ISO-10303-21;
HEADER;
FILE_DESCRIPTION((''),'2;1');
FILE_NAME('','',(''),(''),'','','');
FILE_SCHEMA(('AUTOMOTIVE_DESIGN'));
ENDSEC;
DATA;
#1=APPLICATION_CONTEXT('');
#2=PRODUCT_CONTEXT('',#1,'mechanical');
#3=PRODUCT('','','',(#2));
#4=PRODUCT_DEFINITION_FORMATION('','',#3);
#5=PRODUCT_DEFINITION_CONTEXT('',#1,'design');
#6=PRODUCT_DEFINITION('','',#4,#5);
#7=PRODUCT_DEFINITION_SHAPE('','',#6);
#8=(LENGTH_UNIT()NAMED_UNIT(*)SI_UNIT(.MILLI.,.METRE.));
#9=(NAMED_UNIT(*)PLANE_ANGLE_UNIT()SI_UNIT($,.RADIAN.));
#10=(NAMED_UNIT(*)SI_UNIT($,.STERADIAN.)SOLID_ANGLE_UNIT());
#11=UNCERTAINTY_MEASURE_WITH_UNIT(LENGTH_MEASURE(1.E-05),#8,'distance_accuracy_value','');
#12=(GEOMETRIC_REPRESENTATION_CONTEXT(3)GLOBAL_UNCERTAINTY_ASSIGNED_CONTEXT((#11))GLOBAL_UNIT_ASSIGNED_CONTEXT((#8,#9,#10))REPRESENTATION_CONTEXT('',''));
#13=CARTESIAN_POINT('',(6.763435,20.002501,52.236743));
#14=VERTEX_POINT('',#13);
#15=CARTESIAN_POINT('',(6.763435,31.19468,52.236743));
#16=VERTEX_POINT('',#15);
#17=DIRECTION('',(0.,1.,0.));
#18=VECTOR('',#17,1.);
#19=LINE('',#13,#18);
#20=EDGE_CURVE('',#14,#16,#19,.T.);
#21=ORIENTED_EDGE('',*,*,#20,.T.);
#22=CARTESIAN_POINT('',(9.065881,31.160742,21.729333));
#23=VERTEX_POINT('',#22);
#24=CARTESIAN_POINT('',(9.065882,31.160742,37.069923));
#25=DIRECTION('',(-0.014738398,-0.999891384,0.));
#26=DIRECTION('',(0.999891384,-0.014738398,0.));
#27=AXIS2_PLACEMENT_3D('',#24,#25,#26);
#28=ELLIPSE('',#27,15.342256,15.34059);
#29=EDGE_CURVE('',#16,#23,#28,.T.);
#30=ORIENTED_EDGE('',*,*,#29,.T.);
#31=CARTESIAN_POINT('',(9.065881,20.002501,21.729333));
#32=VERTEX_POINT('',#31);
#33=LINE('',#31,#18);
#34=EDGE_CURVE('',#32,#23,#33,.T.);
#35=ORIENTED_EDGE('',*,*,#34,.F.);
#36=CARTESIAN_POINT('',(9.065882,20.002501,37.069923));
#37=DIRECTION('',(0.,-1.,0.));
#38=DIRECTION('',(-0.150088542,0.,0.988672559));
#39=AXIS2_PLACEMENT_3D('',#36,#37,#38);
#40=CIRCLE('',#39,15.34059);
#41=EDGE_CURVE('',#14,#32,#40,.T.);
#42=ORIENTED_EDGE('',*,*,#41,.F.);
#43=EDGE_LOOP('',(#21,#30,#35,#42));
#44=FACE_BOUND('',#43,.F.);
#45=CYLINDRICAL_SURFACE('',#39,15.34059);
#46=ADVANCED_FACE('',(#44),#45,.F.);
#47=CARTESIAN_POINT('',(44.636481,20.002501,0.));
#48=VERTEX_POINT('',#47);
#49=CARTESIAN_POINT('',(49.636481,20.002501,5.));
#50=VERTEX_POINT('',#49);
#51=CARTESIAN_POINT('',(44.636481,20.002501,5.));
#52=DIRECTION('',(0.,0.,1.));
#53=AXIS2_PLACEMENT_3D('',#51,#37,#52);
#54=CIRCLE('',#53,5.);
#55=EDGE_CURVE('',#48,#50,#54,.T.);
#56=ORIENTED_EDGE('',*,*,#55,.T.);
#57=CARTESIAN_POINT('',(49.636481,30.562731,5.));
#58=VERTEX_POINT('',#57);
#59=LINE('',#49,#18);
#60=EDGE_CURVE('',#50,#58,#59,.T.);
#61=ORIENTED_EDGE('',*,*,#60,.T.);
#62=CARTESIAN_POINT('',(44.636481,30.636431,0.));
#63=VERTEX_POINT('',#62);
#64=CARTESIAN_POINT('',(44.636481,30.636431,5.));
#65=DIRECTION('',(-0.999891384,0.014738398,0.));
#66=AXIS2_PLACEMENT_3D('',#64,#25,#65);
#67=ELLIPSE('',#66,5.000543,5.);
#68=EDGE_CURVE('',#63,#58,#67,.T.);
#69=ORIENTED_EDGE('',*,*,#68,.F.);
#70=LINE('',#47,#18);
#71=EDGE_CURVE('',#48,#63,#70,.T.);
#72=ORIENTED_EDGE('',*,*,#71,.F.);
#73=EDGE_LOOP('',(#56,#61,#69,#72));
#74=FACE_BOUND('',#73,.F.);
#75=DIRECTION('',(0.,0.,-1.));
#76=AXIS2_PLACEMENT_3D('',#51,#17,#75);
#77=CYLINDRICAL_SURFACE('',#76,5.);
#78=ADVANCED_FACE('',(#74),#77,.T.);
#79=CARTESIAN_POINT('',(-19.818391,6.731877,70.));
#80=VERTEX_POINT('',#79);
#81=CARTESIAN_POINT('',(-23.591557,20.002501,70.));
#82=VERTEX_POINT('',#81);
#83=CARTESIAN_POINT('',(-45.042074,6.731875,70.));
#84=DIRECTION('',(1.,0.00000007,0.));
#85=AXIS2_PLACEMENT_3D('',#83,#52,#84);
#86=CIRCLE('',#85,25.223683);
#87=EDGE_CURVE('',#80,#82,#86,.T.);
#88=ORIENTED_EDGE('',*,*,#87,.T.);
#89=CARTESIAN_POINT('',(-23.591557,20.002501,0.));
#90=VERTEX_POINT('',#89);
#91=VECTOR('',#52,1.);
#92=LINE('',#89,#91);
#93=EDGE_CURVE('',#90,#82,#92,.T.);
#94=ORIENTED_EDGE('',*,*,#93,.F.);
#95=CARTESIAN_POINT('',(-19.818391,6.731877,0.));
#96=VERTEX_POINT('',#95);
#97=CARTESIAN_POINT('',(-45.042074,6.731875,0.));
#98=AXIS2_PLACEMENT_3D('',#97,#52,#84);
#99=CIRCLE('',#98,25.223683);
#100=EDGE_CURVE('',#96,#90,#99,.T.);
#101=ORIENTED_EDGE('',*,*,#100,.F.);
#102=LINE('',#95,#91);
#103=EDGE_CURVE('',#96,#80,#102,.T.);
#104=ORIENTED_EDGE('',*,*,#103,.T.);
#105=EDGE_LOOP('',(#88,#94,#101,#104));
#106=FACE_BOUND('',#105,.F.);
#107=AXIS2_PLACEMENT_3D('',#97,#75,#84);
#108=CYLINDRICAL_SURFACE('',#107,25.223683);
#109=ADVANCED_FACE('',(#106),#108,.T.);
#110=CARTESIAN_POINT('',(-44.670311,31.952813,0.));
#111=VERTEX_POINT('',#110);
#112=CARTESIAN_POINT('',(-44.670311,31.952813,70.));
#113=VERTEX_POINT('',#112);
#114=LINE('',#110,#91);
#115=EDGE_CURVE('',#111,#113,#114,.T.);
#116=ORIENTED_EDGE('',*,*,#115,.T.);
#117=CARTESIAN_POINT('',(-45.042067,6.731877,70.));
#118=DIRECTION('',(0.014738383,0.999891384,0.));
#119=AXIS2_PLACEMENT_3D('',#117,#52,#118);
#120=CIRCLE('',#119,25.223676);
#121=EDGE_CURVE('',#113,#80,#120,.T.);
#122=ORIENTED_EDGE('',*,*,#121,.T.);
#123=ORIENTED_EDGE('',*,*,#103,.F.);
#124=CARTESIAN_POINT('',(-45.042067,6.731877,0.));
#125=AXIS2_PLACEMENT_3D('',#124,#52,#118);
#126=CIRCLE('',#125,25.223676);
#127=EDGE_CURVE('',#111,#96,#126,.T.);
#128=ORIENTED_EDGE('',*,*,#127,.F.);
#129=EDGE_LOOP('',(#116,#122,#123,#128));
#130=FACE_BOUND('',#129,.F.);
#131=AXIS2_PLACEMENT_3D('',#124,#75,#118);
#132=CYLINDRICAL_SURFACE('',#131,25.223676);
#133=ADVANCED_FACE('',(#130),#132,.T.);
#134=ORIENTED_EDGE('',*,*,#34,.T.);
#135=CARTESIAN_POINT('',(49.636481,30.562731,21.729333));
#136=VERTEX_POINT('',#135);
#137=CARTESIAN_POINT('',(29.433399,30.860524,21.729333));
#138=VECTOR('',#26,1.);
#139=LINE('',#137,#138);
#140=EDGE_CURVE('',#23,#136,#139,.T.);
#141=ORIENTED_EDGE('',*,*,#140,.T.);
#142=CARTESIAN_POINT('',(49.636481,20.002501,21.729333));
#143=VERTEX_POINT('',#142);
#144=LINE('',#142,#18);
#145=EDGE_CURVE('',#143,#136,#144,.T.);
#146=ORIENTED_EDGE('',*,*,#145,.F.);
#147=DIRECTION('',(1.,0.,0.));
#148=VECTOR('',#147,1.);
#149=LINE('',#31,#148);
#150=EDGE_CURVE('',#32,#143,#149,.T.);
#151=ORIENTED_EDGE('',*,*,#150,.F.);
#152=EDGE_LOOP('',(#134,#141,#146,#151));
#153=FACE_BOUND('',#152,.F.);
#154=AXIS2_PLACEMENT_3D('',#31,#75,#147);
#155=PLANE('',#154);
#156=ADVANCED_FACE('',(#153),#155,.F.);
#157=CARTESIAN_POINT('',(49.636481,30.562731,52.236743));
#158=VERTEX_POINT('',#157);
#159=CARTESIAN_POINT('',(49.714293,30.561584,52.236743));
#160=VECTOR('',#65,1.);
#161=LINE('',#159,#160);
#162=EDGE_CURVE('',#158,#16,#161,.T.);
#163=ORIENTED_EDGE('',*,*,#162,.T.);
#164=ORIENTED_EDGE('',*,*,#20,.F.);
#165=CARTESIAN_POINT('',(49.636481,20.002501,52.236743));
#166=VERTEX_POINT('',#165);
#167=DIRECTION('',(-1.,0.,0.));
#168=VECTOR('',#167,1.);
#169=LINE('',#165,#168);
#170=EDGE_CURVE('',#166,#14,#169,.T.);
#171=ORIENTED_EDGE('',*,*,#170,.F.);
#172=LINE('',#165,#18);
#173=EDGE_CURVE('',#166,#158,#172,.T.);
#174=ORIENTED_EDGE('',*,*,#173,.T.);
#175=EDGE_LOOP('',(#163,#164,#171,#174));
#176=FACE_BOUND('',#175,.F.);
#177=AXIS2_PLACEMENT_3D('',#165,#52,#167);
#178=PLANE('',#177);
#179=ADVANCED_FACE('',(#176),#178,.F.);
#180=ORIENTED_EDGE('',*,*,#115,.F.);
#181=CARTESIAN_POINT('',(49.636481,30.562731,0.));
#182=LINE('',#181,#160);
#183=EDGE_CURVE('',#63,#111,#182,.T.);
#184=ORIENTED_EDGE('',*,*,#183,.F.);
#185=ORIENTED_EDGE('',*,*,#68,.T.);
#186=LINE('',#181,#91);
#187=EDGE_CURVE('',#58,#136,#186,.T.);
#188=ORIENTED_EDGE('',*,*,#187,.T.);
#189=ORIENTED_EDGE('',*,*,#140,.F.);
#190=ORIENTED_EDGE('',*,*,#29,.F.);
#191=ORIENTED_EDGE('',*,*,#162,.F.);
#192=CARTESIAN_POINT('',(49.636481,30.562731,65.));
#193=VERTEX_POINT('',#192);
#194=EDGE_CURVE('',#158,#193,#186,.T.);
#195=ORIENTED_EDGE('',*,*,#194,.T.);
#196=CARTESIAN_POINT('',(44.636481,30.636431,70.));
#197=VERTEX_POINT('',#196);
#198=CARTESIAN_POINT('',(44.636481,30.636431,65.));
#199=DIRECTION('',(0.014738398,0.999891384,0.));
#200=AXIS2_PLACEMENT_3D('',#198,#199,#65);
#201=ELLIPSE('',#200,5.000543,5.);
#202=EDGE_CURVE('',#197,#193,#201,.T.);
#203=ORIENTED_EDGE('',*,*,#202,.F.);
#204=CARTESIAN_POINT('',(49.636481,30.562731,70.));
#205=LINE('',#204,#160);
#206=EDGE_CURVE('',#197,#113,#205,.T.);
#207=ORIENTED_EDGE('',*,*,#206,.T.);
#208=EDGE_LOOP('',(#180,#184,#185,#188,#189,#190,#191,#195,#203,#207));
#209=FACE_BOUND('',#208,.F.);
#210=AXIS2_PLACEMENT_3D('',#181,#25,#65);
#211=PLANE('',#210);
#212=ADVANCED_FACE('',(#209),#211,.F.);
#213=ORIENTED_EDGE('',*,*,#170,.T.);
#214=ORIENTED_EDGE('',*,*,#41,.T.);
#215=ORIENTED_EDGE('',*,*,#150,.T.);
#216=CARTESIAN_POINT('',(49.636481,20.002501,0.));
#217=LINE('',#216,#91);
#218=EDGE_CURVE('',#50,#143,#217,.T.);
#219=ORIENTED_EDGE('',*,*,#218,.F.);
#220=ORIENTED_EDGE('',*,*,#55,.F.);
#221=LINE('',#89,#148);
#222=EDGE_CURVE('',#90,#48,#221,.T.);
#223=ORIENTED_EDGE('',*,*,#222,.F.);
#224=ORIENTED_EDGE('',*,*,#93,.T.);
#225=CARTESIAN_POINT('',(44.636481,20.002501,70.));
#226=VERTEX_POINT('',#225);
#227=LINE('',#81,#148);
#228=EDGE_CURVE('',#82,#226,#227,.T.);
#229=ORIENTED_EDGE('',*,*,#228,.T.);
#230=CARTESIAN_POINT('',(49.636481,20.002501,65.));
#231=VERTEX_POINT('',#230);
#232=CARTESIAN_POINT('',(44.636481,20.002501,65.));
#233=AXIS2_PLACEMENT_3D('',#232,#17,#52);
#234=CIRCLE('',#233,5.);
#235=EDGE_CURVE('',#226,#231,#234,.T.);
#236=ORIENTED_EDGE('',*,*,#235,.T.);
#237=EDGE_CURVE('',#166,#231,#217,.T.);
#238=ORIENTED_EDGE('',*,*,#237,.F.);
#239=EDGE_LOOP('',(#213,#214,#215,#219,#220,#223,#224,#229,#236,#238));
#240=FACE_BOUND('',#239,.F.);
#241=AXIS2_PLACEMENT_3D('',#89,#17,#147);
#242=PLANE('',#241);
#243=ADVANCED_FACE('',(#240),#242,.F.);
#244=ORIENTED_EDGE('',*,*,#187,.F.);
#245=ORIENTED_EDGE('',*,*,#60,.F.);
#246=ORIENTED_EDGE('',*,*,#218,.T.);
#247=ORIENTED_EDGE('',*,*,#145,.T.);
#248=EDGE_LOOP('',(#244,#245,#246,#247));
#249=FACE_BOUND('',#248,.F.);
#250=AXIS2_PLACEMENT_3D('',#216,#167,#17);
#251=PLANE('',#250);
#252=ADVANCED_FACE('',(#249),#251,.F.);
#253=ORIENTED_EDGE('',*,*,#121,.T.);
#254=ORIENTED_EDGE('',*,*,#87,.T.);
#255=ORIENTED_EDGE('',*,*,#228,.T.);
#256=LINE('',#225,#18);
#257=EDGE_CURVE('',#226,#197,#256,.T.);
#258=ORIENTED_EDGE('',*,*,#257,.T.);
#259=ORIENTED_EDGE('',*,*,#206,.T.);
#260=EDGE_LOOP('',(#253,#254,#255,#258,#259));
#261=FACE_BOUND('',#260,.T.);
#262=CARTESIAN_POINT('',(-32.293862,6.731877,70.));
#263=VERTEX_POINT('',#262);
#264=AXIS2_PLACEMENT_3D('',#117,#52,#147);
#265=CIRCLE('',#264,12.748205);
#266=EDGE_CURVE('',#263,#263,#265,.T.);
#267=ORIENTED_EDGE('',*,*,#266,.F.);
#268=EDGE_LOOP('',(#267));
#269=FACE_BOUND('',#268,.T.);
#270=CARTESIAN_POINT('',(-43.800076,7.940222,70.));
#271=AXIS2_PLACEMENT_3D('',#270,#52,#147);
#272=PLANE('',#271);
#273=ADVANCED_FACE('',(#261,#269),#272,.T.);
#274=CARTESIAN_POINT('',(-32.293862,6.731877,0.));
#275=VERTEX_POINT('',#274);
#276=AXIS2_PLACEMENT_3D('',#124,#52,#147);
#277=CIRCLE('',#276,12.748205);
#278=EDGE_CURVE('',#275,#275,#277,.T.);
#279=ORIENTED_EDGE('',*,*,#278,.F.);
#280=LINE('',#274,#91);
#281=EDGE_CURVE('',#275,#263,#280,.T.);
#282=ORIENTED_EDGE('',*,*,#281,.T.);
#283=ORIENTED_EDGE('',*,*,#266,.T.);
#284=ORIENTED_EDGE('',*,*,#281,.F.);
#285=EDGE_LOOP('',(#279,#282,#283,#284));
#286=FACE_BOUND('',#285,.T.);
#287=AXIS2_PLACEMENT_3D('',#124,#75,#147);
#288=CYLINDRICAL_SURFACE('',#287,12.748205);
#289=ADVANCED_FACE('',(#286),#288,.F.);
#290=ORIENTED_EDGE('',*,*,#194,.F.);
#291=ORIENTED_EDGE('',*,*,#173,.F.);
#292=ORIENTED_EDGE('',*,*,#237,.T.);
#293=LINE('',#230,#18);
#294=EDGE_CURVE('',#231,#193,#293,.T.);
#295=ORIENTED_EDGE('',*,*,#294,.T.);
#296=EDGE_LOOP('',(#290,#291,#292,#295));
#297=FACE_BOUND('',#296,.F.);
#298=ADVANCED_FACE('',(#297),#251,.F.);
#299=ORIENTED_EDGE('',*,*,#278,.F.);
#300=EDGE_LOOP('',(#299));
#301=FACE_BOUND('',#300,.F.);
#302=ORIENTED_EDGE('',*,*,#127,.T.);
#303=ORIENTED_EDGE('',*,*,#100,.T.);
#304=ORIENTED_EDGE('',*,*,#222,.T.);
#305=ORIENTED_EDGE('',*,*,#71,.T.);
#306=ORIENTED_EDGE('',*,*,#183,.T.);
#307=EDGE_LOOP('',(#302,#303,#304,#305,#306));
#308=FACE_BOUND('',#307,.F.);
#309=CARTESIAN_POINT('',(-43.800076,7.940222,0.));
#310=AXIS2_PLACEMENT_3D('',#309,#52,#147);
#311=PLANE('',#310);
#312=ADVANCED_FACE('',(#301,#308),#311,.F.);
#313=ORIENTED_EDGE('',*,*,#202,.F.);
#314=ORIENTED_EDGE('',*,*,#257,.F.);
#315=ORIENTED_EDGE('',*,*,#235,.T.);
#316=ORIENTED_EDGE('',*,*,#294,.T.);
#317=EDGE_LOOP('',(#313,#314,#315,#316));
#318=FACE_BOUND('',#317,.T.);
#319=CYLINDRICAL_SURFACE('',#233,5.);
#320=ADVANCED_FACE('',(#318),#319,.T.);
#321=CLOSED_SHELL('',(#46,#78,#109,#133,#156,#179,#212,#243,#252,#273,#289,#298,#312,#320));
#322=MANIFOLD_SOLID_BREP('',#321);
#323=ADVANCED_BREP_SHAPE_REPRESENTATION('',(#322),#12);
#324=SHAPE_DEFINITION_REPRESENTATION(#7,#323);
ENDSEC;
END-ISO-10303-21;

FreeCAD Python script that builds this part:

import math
import FreeCAD as App
import Part
import Sketcher

V = App.Vector
Q = App.Units.Quantity


def edges_at(feature, points):
    """Names of the edges that pass closest to the given points."""
    edges = feature.Shape.Edges
    near = lambda p: min(range(len(edges)), key=lambda i: edges[i].distToShape(Part.Vertex(*p))[0])
    return sorted({f"Edge{near(p) + 1}" for p in points})

doc = App.newDocument("Part")
params = doc.addObject("Spreadsheet::Sheet", "Params")
for row, (alias, value) in enumerate([
    ("pad1_length", "70 mm"),
    ("pocket1_length", "25 mm"),
    ("fillet_radius", "5 mm"),
], start=1):
    params.set(f"A{row}", alias)
    params.set(f"B{row}", "=" + value)
    params.setAlias(f"B{row}", alias)

body = doc.addObject("PartDesign::Body", "Body")

sketch1 = doc.addObject("Sketcher::SketchObject", "Sketch")
body.addObject(sketch1)
sketch1.AttachmentSupport = (doc.XY_Plane, [""])
sketch1.MapMode = "FlatFace"
sketch1.addGeometry([
    Part.ArcOfCircle(Part.Circle(V(-45, 7, 0), V(0, 0, 1), 25), math.radians(89), math.radians(360)),
    Part.ArcOfCircle(Part.Circle(V(-45, 7, 0), V(0, 0, 1), 25), math.radians(0), math.radians(32)),
    Part.LineSegment(V(-24, 20, 0), V(50, 20, 0)),
    Part.LineSegment(V(50, 20, 0), V(50, 31, 0)),
    Part.LineSegment(V(50, 31, 0), V(-45, 32, 0)),
    Part.Circle(V(-45, 7, 0), V(0, 0, 1), 13),
], False)
sketch1.addConstraint([
    Sketcher.Constraint("Tangent", 0, 2, 1, 1),
    Sketcher.Constraint("Coincident", 1, 2, 2, 1),
    Sketcher.Constraint("Coincident", 2, 2, 3, 1),
    Sketcher.Constraint("Coincident", 3, 2, 4, 1),
    Sketcher.Constraint("Tangent", 4, 2, 0, 1),
    Sketcher.Constraint("Horizontal", 2),
    Sketcher.Constraint("Vertical", 3),
    Sketcher.Constraint("Coincident", 5, 3, 0, 3),
    Sketcher.Constraint("Horizontal", 5, 3, 0, 2),
    Sketcher.Constraint("Diameter", 5, Q("25.49641 mm")),
    Sketcher.Constraint("Radius", 0, Q("25.223676 mm")),
    Sketcher.Constraint("Radius", 1, Q("25.223683 mm")),
    Sketcher.Constraint("DistanceX", 2, 1, 2, 2, Q("73.228038 mm")),
    Sketcher.Constraint("DistanceY", 3, 1, 3, 2, Q("10.56023 mm")),
    Sketcher.Constraint("DistanceY", -1, 1, 1, 2, Q("20.002501 mm")),
    Sketcher.Constraint("DistanceX", 0, 2, -1, 1, Q("19.818391 mm")),
    Sketcher.Constraint("DistanceX", -1, 1, 2, 2, Q("49.636481 mm")),
])
pad1 = doc.addObject("PartDesign::Pad", "Pad")
body.addObject(pad1)
pad1.Profile = sketch1
pad1.setExpression("Length", "Params.pad1_length")

sketch2 = doc.addObject("Sketcher::SketchObject", "Sketch001")
body.addObject(sketch2)
sketch2.AttachmentSupport = (doc.XZ_Plane, [""])
sketch2.MapMode = "FlatFace"
sketch2.AttachmentOffset = App.Placement(V(0, 0, -20.002501), App.Rotation())
sketch2.addGeometry([
    Part.LineSegment(V(50, 22, 0), V(50, 52, 0)),
    Part.LineSegment(V(50, 52, 0), V(7, 52, 0)),
    Part.ArcOfCircle(Part.Circle(V(9, 37, 0), V(0, 0, 1), 15), math.radians(99), math.radians(270)),
    Part.LineSegment(V(9, 22, 0), V(50, 22, 0)),
], False)
sketch2.addConstraint([
    Sketcher.Constraint("Coincident", 0, 2, 1, 1),
    Sketcher.Constraint("Coincident", 1, 2, 2, 1),
    Sketcher.Constraint("Tangent", 2, 2, 3, 1),
    Sketcher.Constraint("Coincident", 3, 2, 0, 1),
    Sketcher.Constraint("Vertical", 0),
    Sketcher.Constraint("Horizontal", 1),
    Sketcher.Constraint("Horizontal", 3),
    Sketcher.Constraint("Radius", 2, Q("15.34059 mm")),
    Sketcher.Constraint("DistanceX", 3, 1, 3, 2, Q("40.5706 mm")),
    Sketcher.Constraint("DistanceY", 0, 1, 0, 2, Q("30.50741 mm")),
    Sketcher.Constraint("DistanceX", -1, 1, 2, 3, Q("9.065882 mm")),
    Sketcher.Constraint("DistanceY", -1, 1, 2, 3, Q("37.069923 mm")),
])
pocket1 = doc.addObject("PartDesign::Pocket", "Pocket")
body.addObject(pocket1)
pocket1.Profile = sketch2
pocket1.setExpression("Length", "Params.pocket1_length")
doc.recompute()

fillet = doc.addObject("PartDesign::Fillet", "Fillet")
body.addObject(fillet)
fillet.Base = (pocket1, edges_at(pocket1, [(49.636, 25.283, 70), (49.636, 25.283, 0)]))
fillet.setExpression("Radius", "Params.fillet_radius")

doc.recompute()
